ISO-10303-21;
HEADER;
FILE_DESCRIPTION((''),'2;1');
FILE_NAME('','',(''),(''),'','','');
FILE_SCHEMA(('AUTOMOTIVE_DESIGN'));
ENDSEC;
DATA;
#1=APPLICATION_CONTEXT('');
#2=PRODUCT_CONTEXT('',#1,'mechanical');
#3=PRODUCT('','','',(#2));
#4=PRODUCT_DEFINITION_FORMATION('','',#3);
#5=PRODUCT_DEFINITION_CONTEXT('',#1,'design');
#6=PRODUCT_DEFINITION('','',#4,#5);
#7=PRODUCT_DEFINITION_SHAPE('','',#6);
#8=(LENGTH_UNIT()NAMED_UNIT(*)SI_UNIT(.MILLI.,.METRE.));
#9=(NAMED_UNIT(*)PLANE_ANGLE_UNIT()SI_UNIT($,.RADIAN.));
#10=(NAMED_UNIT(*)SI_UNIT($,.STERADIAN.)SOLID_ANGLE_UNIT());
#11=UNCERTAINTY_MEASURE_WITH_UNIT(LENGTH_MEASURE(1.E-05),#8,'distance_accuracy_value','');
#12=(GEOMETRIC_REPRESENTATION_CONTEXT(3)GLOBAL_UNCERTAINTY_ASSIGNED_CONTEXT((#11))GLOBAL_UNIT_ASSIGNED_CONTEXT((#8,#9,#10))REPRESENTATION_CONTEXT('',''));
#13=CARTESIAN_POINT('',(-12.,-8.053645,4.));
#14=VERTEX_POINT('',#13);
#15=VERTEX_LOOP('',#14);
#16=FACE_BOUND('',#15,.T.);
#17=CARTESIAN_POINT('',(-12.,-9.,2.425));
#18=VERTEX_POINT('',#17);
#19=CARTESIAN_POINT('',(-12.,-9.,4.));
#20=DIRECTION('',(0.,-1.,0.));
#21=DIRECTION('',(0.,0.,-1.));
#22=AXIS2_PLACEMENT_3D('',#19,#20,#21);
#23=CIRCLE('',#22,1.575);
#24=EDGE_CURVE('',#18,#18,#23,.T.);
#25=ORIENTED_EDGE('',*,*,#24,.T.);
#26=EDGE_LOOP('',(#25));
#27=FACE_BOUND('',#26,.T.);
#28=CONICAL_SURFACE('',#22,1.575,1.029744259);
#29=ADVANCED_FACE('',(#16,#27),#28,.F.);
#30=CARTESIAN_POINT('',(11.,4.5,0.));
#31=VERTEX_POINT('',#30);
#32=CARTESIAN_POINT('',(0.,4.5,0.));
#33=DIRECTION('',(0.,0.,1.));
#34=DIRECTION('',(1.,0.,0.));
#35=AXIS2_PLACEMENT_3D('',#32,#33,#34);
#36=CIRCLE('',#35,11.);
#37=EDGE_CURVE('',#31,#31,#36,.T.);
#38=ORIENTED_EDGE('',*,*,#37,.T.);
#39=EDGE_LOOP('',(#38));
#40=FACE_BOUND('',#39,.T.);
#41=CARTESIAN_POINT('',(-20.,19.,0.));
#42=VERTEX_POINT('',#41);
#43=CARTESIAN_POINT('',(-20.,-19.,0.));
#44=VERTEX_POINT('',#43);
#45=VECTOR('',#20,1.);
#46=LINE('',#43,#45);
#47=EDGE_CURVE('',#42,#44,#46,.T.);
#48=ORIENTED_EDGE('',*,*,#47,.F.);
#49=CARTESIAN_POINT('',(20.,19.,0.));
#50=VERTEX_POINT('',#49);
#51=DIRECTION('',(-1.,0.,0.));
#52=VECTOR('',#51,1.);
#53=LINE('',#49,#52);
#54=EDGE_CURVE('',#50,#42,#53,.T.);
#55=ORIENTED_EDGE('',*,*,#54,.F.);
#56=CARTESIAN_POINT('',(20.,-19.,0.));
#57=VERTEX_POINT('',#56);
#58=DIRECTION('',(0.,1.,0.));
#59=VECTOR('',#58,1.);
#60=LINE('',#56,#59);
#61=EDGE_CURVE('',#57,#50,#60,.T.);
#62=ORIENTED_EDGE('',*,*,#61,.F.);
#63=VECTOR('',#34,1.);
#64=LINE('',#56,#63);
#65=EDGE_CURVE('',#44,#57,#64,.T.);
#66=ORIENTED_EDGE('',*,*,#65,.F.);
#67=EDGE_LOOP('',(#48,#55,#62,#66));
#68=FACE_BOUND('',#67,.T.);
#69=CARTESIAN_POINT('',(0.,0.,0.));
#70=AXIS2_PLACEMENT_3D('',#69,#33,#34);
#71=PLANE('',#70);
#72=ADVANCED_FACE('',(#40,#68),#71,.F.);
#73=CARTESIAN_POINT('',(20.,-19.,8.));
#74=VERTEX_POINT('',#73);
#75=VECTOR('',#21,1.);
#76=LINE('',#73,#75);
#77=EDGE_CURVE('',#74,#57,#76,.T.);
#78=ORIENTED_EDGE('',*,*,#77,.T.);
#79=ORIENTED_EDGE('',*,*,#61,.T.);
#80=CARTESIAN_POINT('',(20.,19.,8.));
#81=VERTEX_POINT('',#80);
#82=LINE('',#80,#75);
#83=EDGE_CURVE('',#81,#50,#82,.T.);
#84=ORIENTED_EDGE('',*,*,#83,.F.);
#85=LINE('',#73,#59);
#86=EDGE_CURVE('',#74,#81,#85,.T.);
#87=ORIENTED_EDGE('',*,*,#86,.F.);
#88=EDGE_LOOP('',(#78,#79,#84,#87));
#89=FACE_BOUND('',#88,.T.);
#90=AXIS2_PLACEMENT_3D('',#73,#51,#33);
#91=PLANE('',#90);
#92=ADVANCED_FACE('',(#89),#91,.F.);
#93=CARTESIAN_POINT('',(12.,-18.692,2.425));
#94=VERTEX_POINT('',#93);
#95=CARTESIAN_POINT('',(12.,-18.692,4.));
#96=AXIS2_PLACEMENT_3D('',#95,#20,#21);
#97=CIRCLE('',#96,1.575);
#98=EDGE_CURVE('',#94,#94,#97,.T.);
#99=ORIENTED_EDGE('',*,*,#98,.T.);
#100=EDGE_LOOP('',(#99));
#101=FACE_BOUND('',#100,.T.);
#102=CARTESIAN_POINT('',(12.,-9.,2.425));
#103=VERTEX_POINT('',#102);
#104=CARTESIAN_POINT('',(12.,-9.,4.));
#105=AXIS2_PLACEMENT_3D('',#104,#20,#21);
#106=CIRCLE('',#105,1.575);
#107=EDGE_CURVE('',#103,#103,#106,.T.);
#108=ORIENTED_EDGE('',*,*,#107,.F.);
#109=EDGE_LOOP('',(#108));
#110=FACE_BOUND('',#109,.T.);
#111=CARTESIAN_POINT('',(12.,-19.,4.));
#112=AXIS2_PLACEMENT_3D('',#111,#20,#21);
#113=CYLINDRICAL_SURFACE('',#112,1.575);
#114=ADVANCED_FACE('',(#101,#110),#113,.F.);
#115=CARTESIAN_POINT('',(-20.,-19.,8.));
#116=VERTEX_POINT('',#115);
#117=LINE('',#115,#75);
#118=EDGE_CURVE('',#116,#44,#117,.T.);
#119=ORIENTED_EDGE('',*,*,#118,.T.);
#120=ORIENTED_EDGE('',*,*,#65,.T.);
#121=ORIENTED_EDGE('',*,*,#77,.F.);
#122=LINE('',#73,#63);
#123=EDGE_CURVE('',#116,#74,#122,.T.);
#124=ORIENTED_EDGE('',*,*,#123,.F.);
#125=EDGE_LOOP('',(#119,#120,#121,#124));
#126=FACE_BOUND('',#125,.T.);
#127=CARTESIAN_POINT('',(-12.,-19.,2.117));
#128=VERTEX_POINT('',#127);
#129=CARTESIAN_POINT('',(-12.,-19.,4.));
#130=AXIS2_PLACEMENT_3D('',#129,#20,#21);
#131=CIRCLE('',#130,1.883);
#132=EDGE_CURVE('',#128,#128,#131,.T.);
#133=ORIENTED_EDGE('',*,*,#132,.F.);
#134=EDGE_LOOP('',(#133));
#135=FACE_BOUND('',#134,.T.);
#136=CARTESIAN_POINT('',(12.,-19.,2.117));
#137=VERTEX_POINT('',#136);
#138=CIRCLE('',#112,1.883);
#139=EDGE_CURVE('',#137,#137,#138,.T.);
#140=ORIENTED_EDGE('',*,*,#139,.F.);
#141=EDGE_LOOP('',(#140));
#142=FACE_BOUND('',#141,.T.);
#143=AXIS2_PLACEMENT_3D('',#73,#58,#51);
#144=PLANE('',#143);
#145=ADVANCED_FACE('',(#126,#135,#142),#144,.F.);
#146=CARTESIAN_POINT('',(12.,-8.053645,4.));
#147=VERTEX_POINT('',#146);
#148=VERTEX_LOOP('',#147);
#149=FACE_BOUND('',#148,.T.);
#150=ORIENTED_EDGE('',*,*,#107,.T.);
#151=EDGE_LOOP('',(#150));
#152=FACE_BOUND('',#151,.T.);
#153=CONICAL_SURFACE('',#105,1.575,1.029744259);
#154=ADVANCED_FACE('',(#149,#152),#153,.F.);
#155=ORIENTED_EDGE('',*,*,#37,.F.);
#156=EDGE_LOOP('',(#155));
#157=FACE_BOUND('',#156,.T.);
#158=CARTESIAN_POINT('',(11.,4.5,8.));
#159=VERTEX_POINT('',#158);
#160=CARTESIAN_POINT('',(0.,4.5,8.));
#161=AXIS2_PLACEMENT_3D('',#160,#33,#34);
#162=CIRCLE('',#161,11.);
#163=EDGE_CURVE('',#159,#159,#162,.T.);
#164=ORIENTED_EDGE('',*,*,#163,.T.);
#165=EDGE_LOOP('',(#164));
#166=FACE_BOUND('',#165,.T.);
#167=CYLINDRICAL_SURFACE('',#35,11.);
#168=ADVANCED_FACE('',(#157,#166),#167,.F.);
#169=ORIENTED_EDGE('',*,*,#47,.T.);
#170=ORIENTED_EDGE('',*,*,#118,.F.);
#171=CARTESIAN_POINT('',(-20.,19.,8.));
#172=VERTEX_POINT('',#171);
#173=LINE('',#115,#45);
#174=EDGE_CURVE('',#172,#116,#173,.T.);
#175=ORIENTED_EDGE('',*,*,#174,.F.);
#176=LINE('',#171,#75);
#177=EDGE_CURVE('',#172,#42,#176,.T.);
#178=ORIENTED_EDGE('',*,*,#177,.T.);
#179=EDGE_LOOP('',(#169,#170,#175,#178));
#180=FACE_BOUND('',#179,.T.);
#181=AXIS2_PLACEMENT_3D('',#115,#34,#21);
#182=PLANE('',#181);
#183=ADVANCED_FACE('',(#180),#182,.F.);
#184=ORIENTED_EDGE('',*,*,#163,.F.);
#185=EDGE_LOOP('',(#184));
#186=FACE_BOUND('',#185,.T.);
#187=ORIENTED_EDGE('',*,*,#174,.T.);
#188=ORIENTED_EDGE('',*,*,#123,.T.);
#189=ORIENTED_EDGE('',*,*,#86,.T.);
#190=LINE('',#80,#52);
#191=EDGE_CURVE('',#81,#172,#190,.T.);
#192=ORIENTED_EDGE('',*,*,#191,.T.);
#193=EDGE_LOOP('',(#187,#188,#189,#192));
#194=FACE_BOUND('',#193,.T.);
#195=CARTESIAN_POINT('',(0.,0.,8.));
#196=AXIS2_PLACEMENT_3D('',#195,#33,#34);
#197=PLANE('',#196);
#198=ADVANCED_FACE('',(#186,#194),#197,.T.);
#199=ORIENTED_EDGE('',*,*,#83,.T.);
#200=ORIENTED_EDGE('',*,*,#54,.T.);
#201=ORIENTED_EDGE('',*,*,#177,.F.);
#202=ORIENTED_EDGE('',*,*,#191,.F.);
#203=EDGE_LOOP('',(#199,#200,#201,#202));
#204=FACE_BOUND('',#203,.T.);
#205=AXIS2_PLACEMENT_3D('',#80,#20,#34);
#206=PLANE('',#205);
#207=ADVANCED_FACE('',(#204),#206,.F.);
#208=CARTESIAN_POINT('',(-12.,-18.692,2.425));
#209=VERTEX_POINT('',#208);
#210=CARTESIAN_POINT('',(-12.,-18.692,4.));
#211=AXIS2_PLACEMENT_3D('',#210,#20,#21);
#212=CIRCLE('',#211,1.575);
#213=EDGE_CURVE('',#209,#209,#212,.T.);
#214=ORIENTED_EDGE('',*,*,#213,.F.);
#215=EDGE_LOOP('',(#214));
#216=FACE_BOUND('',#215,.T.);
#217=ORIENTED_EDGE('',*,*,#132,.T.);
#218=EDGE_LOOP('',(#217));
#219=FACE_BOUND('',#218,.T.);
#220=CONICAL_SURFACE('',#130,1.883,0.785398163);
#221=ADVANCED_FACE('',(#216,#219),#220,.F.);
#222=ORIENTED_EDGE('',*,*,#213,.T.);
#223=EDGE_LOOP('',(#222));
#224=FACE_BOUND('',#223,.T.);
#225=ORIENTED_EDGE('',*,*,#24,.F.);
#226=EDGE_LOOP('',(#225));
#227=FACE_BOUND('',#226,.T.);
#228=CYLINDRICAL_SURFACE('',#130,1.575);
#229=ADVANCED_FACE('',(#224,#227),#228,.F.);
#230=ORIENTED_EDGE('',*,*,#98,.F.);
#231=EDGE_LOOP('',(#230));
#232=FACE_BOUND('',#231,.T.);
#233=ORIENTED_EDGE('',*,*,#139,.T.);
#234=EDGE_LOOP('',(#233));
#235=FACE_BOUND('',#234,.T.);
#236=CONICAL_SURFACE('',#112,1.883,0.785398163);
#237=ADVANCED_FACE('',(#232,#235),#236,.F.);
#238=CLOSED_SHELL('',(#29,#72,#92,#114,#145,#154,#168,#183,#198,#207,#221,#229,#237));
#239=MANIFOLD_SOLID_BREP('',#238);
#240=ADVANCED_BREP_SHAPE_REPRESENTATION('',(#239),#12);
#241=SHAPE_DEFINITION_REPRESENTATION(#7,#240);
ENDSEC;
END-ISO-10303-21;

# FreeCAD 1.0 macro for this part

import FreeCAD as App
import Part
import Sketcher

V = App.Vector
Q = App.Units.Quantity

doc = App.newDocument("Part")
params = doc.addObject("Spreadsheet::Sheet", "Params")
for row, (alias, value) in enumerate([
    ("sketch1_width", "40 mm"),
    ("sketch1_height", "38 mm"),
    ("pad1_length", "8 mm"),
    ("sketch2_diameter", "22 mm"),
    ("sketch3_diameter", "3.15 mm"),
    ("hole_diameter", "3.15 mm"),
    ("hole_depth", "10 mm"),
    ("hole_csink_diameter", "3.766 mm"),
], start=1):
    params.set(f"A{row}", alias)
    params.set(f"B{row}", "=" + value)
    params.setAlias(f"B{row}", alias)

body = doc.addObject("PartDesign::Body", "Body")

# Sketch on XY plane
sketch1 = body.newObject("Sketcher::SketchObject", "Sketch")
sketch1.AttachmentSupport = (doc.getObject("XY_Plane"), [""])
sketch1.MapMode = "FlatFace"
sketch1.addGeometry([
    Part.LineSegment(V(-20, 19, 0), V(-20, -19, 0)),
    Part.LineSegment(V(-20, -19, 0), V(20, -19, 0)),
    Part.LineSegment(V(20, -19, 0), V(20, 19, 0)),
    Part.LineSegment(V(20, 19, 0), V(-20, 19, 0)),
], False)
sketch1.addConstraint([
    Sketcher.Constraint("Coincident", 0, 2, 1, 1),
    Sketcher.Constraint("Coincident", 1, 2, 2, 1),
    Sketcher.Constraint("Coincident", 2, 2, 3, 1),
    Sketcher.Constraint("Coincident", 3, 2, 0, 1),
    Sketcher.Constraint("Vertical", 0),
    Sketcher.Constraint("Horizontal", 1),
    Sketcher.Constraint("Vertical", 2),
    Sketcher.Constraint("Horizontal", 3),
    Sketcher.Constraint("Symmetric", 0, 2, 2, 2, -1, 1),
    Sketcher.Constraint("DistanceX", 1, 1, 1, 2, Q("40 mm")),
    Sketcher.Constraint("DistanceY", 0, 2, 0, 1, Q("38 mm")),
])
sketch1.setExpression("Constraints[9]", "Params.sketch1_width")
sketch1.setExpression("Constraints[10]", "Params.sketch1_height")
pad1 = body.newObject("PartDesign::Pad", "Pad")
pad1.Profile = sketch1
pad1.setExpression("Length", "Params.pad1_length")

# Sketch on XY plane
sketch2 = body.newObject("Sketcher::SketchObject", "Sketch001")
sketch2.AttachmentSupport = (doc.getObject("XY_Plane"), [""])
sketch2.MapMode = "FlatFace"
sketch2.AttachmentOffset = App.Placement(V(0, 0, 8), App.Rotation())
sketch2.addGeometry(Part.Circle(V(0, 4, 0), V(0, 0, 1), 11), False)
sketch2.addConstraint([
    Sketcher.Constraint("PointOnObject", 0, 3, -2),
    Sketcher.Constraint("Diameter", 0, Q("22 mm")),
    Sketcher.Constraint("DistanceY", -1, 1, 0, 3, Q("4.5 mm")),
])
sketch2.setExpression("Constraints[1]", "Params.sketch2_diameter")
pocket1 = body.newObject("PartDesign::Pocket", "Pocket")
pocket1.Profile = sketch2
pocket1.Type = "ThroughAll"

# Sketch on XZ plane
sketch3 = body.newObject("Sketcher::SketchObject", "Sketch002")
sketch3.AttachmentSupport = (doc.getObject("XZ_Plane"), [""])
sketch3.MapMode = "FlatFace"
sketch3.AttachmentOffset = App.Placement(V(0, 0, 19), App.Rotation())
sketch3.addGeometry([
    Part.Circle(V(12, 4, 0), V(0, 0, 1), 1.6),
    Part.Circle(V(-12, 4, 0), V(0, 0, 1), 1.6),
], False)
sketch3.addConstraint([
    Sketcher.Constraint("Equal", 0, 1),
    Sketcher.Constraint("Symmetric", 0, 3, 1, 3, -2),
    Sketcher.Constraint("Diameter", 0, Q("3.15 mm")),
    Sketcher.Constraint("DistanceX", -1, 1, 0, 3, Q("12 mm")),
    Sketcher.Constraint("DistanceY", -1, 1, 0, 3, Q("4 mm")),
])
sketch3.setExpression("Constraints[2]", "Params.sketch3_diameter")
doc.recompute()
hole = body.newObject("PartDesign::Hole", "Hole")
hole.Profile = sketch3
hole.ThreadType = "None"
hole.setExpression("Diameter", "Params.hole_diameter")
hole.DepthType = "Dimension"
hole.setExpression("Depth", "Params.hole_depth")
hole.DrillPoint = "Angled"
hole.DrillPointAngle = 118
hole.HoleCutType = "Countersink"
hole.setExpression("HoleCutDiameter", "Params.hole_csink_diameter")
hole.HoleCutCountersinkAngle = 90

doc.recompute()
